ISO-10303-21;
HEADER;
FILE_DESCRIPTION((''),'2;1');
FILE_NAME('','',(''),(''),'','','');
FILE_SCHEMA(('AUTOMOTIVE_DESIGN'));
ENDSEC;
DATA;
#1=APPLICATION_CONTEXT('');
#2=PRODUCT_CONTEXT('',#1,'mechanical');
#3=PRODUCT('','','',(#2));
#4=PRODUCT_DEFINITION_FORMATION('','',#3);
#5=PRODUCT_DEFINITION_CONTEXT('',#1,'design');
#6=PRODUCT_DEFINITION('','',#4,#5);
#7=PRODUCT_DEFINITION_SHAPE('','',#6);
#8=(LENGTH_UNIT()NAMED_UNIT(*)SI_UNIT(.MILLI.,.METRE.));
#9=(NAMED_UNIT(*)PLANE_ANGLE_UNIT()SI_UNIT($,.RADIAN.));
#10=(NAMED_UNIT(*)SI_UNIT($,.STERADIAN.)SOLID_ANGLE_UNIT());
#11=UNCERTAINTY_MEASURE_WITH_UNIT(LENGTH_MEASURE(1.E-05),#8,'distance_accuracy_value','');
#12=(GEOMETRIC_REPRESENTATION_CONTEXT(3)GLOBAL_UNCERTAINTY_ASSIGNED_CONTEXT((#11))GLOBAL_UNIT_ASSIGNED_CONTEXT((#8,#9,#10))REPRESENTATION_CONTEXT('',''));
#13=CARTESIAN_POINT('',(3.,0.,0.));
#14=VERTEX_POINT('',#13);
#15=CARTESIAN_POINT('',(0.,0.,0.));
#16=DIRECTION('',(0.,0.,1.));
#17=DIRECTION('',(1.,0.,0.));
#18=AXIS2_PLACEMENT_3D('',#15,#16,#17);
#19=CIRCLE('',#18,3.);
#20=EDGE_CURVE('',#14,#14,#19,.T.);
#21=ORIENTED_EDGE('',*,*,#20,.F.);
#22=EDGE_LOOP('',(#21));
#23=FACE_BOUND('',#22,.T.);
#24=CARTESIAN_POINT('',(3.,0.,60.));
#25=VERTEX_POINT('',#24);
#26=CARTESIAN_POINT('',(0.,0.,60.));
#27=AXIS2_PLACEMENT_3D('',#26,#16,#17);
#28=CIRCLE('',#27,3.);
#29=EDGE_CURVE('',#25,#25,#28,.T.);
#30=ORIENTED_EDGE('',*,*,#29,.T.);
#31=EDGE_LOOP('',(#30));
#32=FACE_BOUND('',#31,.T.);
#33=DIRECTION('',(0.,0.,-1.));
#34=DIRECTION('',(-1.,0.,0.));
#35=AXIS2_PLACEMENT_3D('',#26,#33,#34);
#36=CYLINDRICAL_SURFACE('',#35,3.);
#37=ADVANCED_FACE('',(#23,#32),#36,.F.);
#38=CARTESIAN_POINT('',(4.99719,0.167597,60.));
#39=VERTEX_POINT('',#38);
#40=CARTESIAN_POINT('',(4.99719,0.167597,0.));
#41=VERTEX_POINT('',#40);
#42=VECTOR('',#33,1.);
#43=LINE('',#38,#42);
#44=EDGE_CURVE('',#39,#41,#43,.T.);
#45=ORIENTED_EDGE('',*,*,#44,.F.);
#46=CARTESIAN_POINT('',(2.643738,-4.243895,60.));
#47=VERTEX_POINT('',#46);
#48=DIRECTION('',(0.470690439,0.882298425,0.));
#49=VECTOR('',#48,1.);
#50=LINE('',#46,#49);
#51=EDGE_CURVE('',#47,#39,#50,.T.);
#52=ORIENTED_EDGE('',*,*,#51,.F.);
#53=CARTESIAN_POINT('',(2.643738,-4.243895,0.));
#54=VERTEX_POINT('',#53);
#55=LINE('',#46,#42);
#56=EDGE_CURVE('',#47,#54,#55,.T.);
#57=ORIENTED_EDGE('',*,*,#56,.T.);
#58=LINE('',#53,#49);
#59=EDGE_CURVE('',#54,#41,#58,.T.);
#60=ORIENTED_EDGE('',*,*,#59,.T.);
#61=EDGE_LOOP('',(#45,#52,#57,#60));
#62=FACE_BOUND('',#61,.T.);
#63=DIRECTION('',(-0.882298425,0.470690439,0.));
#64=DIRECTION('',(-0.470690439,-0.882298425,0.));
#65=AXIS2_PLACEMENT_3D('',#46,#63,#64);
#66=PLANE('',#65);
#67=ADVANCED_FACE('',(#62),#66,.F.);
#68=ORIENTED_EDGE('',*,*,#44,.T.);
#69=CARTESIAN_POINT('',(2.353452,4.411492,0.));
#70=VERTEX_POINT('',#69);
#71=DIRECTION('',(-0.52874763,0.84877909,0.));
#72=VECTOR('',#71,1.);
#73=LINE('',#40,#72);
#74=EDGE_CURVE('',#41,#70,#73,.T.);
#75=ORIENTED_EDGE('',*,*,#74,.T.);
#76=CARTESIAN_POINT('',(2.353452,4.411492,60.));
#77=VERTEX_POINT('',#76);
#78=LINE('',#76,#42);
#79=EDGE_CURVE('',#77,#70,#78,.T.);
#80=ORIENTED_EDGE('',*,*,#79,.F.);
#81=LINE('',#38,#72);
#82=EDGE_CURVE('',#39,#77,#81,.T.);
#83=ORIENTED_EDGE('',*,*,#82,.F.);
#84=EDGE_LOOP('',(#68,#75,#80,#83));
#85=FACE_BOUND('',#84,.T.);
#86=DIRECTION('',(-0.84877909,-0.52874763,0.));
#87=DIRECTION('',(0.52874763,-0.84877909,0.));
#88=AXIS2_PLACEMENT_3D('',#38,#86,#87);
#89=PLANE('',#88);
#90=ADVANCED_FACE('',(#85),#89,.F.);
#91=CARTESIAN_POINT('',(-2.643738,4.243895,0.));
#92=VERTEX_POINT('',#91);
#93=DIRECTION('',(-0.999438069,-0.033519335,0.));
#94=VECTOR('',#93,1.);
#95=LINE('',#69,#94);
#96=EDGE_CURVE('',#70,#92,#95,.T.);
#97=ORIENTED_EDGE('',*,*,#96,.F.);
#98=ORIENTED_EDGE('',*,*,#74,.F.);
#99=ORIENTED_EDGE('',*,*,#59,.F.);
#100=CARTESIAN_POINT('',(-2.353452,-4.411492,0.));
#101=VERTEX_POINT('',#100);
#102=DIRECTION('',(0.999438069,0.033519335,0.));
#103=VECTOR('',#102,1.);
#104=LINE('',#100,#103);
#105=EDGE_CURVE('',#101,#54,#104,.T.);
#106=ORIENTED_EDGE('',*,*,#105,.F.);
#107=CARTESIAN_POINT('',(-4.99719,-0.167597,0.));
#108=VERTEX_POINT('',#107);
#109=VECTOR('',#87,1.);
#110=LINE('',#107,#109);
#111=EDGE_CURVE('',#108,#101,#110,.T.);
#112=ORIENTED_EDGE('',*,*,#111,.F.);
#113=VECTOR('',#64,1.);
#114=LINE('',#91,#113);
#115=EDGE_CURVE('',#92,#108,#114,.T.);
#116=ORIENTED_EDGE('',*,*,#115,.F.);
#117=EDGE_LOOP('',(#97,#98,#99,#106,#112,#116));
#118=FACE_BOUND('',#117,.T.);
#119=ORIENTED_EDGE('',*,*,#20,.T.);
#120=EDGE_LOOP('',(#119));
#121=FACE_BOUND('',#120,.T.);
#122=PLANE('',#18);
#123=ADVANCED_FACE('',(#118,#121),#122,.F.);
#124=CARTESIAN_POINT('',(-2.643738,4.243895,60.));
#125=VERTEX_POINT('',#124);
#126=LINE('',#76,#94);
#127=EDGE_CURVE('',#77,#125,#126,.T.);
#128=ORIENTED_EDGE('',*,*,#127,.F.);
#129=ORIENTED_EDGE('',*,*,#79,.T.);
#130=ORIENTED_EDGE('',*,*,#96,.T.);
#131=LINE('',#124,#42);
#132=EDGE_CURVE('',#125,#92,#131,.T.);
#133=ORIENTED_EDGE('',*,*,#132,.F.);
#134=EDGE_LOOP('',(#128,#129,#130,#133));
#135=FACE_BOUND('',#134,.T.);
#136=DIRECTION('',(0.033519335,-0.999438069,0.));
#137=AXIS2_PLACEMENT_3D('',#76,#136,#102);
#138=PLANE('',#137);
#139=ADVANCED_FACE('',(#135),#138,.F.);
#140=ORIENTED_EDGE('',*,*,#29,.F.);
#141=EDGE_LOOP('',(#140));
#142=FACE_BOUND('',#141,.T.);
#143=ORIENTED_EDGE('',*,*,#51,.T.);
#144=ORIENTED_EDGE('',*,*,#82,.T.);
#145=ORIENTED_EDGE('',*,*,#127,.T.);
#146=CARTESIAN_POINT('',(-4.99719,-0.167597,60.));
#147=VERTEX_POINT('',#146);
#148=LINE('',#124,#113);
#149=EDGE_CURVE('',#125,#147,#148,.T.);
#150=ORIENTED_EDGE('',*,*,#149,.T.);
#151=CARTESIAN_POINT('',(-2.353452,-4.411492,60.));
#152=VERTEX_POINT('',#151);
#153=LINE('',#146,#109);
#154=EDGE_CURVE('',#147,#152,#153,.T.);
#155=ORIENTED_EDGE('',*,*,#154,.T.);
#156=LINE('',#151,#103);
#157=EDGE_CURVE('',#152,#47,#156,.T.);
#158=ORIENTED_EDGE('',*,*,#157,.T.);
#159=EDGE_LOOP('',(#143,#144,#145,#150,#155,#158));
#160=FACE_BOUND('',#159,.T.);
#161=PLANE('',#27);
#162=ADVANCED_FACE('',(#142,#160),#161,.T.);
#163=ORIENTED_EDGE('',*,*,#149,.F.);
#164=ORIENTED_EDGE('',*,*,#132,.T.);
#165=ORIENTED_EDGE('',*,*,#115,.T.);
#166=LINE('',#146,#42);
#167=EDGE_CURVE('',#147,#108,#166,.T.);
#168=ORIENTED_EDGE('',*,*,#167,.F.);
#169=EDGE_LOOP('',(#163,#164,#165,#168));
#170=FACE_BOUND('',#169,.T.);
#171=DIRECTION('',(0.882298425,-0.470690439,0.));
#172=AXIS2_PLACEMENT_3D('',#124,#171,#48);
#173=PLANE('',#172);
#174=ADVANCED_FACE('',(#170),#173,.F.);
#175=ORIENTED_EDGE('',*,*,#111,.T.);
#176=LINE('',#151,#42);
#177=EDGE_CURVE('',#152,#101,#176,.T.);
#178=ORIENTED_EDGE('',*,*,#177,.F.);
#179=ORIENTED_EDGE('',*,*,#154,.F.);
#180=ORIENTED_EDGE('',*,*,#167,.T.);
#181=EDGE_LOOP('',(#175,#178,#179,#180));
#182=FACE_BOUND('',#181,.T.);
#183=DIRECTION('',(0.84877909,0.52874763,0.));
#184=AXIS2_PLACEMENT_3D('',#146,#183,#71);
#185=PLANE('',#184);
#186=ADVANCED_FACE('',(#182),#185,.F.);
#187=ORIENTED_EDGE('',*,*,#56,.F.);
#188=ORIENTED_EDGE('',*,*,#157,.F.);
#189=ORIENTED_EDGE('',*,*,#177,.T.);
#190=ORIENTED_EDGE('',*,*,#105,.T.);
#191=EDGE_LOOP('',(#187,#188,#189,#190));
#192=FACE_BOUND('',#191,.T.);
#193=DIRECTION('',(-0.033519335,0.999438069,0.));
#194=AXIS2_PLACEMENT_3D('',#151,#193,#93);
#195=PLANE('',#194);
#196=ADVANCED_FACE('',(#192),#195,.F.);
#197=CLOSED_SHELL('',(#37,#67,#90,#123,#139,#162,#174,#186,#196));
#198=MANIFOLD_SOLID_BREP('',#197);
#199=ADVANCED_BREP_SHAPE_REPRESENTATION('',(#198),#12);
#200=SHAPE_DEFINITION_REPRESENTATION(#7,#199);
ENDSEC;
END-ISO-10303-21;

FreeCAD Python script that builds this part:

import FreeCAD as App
import Part
import Sketcher
from FreeCAD import Vector
Q = App.Units.Quantity


def add_polygon(sketch, points):
    """Adds a closed chain of lines whose ends are joined by coincident constraints."""
    first, n = sketch.GeometryCount, len(points)
    for a, b in zip(points, points[1:] + points[:1]):
        sketch.addGeometry(Part.LineSegment(App.Vector(*a, 0), App.Vector(*b, 0)), False)
    for i in range(n):
        sketch.addConstraint(Sketcher.Constraint("Coincident", first + i, 2, first + (i + 1) % n, 1))

doc = App.newDocument("Part")
params = doc.addObject("Spreadsheet::Sheet", "Params")
for row, (alias, value) in enumerate([
    ("sketch1_diameter", "6 mm"),
    ("sketch1_length", "5 mm"),
    ("pad1_length", "60 mm"),
], start=1):
    params.set(f"A{row}", alias)
    params.set(f"B{row}", "=" + value)
    params.setAlias(f"B{row}", alias)

body = doc.addObject("PartDesign::Body", "Body")

# Sketch on XY plane
sketch1 = body.newObject("Sketcher::SketchObject", "Sketch")
sketch1.AttachmentSupport = (doc.getObject("XY_Plane"), [""])
sketch1.MapMode = "FlatFace"
add_polygon(sketch1, [(2.6, -4.2), (5, 0.2), (2.4, 4.4), (-2.6, 4.2), (-5, -0.2), (-2.4, -4.4)])  # lines 0-5
sketch1.addGeometry(Part.Circle(Vector(0, 0, 0), Vector(0, 0, 1), 3), False)  # 6
sketch1.addConstraint([
    Sketcher.Constraint("Coincident", 6, 3, -1, 1),
    Sketcher.Constraint("Symmetric", 0, 2, 3, 2, -1, 1),
    Sketcher.Constraint("Symmetric", 1, 2, 4, 2, -1, 1),
    Sketcher.Constraint("Symmetric", 2, 2, 5, 2, -1, 1),
    Sketcher.Constraint("Equal", 0, 1),
    Sketcher.Constraint("Equal", 1, 2),
    Sketcher.Constraint("Diameter", 6, Q("6 mm")),
    Sketcher.Constraint("Distance", 0, Q("5 mm")),
    Sketcher.Constraint("DistanceY", 0, 2, 2, 2, Q("4.076299 mm")),
    Sketcher.Constraint("DistanceX", -1, 1, 0, 2, Q("4.99719 mm")),
    Sketcher.Constraint("DistanceX", 2, 2, -1, 1, Q("2.643738 mm")),
])
sketch1.setExpression("Constraints[12]", "Params.sketch1_diameter")
sketch1.setExpression("Constraints[13]", "Params.sketch1_length")
pad1 = body.newObject("PartDesign::Pad", "Pad")
pad1.Profile = sketch1
pad1.setExpression("Length", "Params.pad1_length")

doc.recompute()
